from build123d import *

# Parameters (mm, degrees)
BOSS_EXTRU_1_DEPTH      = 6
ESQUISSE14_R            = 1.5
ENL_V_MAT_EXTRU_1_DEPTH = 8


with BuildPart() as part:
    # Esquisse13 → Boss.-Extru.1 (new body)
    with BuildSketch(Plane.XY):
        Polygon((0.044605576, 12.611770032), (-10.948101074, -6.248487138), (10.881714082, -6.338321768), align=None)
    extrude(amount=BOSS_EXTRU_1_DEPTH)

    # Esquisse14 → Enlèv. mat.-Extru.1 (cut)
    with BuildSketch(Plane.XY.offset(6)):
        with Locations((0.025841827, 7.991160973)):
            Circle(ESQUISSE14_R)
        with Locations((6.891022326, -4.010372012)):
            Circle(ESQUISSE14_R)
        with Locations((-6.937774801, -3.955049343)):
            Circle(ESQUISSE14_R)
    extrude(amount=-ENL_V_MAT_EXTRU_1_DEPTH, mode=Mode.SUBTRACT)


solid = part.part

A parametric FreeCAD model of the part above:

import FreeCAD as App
import Part
import Sketcher
from FreeCAD import Vector


def add_polygon(sketch, points):
    """Adds a closed chain of lines whose ends are joined by coincident constraints."""
    first, n = sketch.GeometryCount, len(points)
    for a, b in zip(points, points[1:] + points[:1]):
        sketch.addGeometry(Part.LineSegment(App.Vector(*a, 0), App.Vector(*b, 0)), False)
    for i in range(n):
        sketch.addConstraint(Sketcher.Constraint("Coincident", first + i, 2, first + (i + 1) % n, 1))

doc = App.newDocument("Part")
params = doc.addObject("Spreadsheet::Sheet", "Params")
for row, (alias, value) in enumerate([
    ("sketch1_length", "21.83 mm"),
    ("pad1_length", "6 mm"),
    ("sketch2_diameter", "3 mm"),
    ("pocket1_length", "8 mm"),
], start=1):
    params.set(f"A{row}", alias)
    params.set(f"B{row}", "=" + value)
    params.setAlias(f"B{row}", alias)

body = doc.addObject("PartDesign::Body", "Body")

# Sketch on XY plane
sketch1 = doc.addObject("Sketcher::SketchObject", "Sketch")
body.addObject(sketch1)
sketch1.AttachmentSupport = (doc.XY_Plane, [""])
sketch1.MapMode = "FlatFace"
add_polygon(sketch1, [(0.044606, 12.61177), (-10.948101, -6.248487), (10.881714, -6.338322)])  # lines 0-2
sketch1.addConstraint(Sketcher.Constraint("Equal", 0, 1))
sketch1.addConstraint(Sketcher.Constraint("Equal", 1, 2))
sketch1.addConstraint(Sketcher.Constraint("Distance", 0, 21.83))
sketch1.addConstraint(Sketcher.Constraint("DistanceX", 0, 2, -1, 1, 10.948101))
sketch1.addConstraint(Sketcher.Constraint("DistanceY", 1, 2, -1, 1, 6.338322))
sketch1.addConstraint(Sketcher.Constraint("DistanceY", -1, 1, 2, 2, 12.61177))
sketch1.setExpression("Constraints[5]", "Params.sketch1_length")
pad1 = doc.addObject("PartDesign::Pad", "Pad")
body.addObject(pad1)
pad1.Profile = sketch1
pad1.setExpression("Length", "Params.pad1_length")

# Sketch on XY plane
sketch2 = doc.addObject("Sketcher::SketchObject", "Sketch001")
body.addObject(sketch2)
sketch2.AttachmentSupport = (doc.XY_Plane, [""])
sketch2.MapMode = "FlatFace"
sketch2.AttachmentOffset = App.Placement(Vector(0, 0, 6), App.Rotation())
sketch2.addGeometry(Part.Circle(Vector(0.025842, 7.991161, 0), Vector(0, 0, 1), 1.5), False)
sketch2.addGeometry(Part.Circle(Vector(6.891022, -4.010372, 0), Vector(0, 0, 1), 1.5), False)
sketch2.addGeometry(Part.Circle(Vector(-6.937775, -3.955049, 0), Vector(0, 0, 1), 1.5), False)
sketch2.addConstraint(Sketcher.Constraint("Equal", 0, 1))
sketch2.addConstraint(Sketcher.Constraint("Equal", 1, 2))
sketch2.addConstraint(Sketcher.Constraint("Diameter", 0, 3.0))
sketch2.addConstraint(Sketcher.Constraint("DistanceX", -1, 1, 0, 3, 0.025842))
sketch2.addConstraint(Sketcher.Constraint("DistanceY", -1, 1, 0, 3, 7.991161))
sketch2.addConstraint(Sketcher.Constraint("DistanceY", 2, 3, -1, 1, 3.955049))
sketch2.addConstraint(Sketcher.Constraint("DistanceX", 0, 3, 1, 3, 6.86518))
sketch2.addConstraint(Sketcher.Constraint("DistanceY", 1, 3, -1, 1, 4.010372))
sketch2.addConstraint(Sketcher.Constraint("DistanceX", 2, 3, -1, 1, 6.937775))
sketch2.setExpression("Constraints[2]", "Params.sketch2_diameter")
pocket1 = doc.addObject("PartDesign::Pocket", "Pocket")
body.addObject(pocket1)
pocket1.Profile = sketch2
pocket1.setExpression("Length", "Params.pocket1_length")

doc.recompute()
